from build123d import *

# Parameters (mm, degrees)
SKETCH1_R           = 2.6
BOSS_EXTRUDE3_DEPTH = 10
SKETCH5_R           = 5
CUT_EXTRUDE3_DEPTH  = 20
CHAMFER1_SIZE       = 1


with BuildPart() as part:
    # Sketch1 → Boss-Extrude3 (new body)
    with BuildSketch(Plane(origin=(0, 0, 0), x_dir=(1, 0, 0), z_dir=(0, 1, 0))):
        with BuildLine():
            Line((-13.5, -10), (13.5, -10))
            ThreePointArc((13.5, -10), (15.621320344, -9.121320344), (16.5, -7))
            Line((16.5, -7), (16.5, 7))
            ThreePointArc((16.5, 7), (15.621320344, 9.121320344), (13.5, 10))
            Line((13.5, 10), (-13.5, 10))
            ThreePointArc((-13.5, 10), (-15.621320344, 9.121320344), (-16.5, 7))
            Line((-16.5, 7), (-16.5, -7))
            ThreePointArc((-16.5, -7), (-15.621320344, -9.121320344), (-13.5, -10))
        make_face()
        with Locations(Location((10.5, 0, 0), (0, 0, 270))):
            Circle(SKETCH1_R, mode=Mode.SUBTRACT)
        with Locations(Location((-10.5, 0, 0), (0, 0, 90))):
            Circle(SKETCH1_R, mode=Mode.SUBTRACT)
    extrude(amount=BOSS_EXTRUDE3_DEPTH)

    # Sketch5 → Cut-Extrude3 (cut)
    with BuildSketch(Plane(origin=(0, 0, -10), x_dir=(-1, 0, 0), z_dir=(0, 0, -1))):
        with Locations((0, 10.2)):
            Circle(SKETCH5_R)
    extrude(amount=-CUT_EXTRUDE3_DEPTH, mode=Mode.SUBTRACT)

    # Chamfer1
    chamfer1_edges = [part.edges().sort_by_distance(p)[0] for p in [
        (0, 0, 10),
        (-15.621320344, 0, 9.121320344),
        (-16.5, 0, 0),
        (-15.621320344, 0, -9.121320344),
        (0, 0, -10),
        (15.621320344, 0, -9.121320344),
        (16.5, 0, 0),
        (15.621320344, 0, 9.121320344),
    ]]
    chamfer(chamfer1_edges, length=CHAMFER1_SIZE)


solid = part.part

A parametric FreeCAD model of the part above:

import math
import FreeCAD as App
import Part
import Sketcher

V = App.Vector
Q = App.Units.Quantity


def edges_at(feature, points):
    """Names of the edges that pass closest to the given points."""
    edges = feature.Shape.Edges
    near = lambda p: min(range(len(edges)), key=lambda i: edges[i].distToShape(Part.Vertex(*p))[0])
    return sorted({f"Edge{near(p) + 1}" for p in points})

doc = App.newDocument("Part")
body = doc.addObject("PartDesign::Body", "Body")

sketch1 = doc.addObject("Sketcher::SketchObject", "Sketch")
body.addObject(sketch1)
sketch1.AttachmentSupport = (doc.XZ_Plane, [""])
sketch1.MapMode = "FlatFace"
sketch1.addGeometry(Part.LineSegment(V(-13.5, 10, 0), V(13.5, 10, 0)), False)
sketch1.addGeometry(Part.ArcOfCircle(Part.Circle(V(13.5, 7, 0), V(0, 0, 1), 3), math.radians(0), math.radians(90)), False)
sketch1.addGeometry(Part.LineSegment(V(16.5, 7, 0), V(16.5, -7, 0)), False)
sketch1.addGeometry(Part.ArcOfCircle(Part.Circle(V(13.5, -7, 0), V(0, 0, 1), 3), math.radians(-90), math.radians(0)), False)
sketch1.addGeometry(Part.LineSegment(V(13.5, -10, 0), V(-13.5, -10, 0)), False)
sketch1.addGeometry(Part.ArcOfCircle(Part.Circle(V(-13.5, -7, 0), V(0, 0, 1), 3), math.radians(180), math.radians(270)), False)
sketch1.addGeometry(Part.LineSegment(V(-16.5, -7, 0), V(-16.5, 7, 0)), False)
sketch1.addGeometry(Part.ArcOfCircle(Part.Circle(V(-13.5, 7, 0), V(0, 0, 1), 3), math.radians(90), math.radians(180)), False)
sketch1.addGeometry(Part.Circle(V(-10.5, 0, 0), V(0, 0, 1), 2.6), False)
sketch1.addGeometry(Part.Circle(V(10.5, 0, 0), V(0, 0, 1), 2.6), False)
sketch1.addConstraint(Sketcher.Constraint("Tangent", 0, 2, 1, 2))
sketch1.addConstraint(Sketcher.Constraint("Tangent", 1, 1, 2, 1))
sketch1.addConstraint(Sketcher.Constraint("Tangent", 2, 2, 3, 2))
sketch1.addConstraint(Sketcher.Constraint("Tangent", 3, 1, 4, 1))
sketch1.addConstraint(Sketcher.Constraint("Tangent", 4, 2, 5, 2))
sketch1.addConstraint(Sketcher.Constraint("Tangent", 5, 1, 6, 1))
sketch1.addConstraint(Sketcher.Constraint("Tangent", 6, 2, 7, 2))
sketch1.addConstraint(Sketcher.Constraint("Tangent", 7, 1, 0, 1))
sketch1.addConstraint(Sketcher.Constraint("Horizontal", 0))
sketch1.addConstraint(Sketcher.Constraint("Vertical", 2))
sketch1.addConstraint(Sketcher.Constraint("Horizontal", 4))
sketch1.addConstraint(Sketcher.Constraint("Vertical", 6))
sketch1.addConstraint(Sketcher.Constraint("Equal", 1, 3))
sketch1.addConstraint(Sketcher.Constraint("Equal", 3, 5))
sketch1.addConstraint(Sketcher.Constraint("Equal", 5, 7))
sketch1.addConstraint(Sketcher.Constraint("Equal", 8, 9))
sketch1.addConstraint(Sketcher.Constraint("Symmetric", 1, 3, 5, 3, -1, 1))
sketch1.addConstraint(Sketcher.Constraint("Symmetric", 8, 3, 9, 3, -1, 1))
sketch1.addConstraint(Sketcher.Constraint("PointOnObject", 8, 3, -1))
sketch1.addConstraint(Sketcher.Constraint("Radius", 1, Q("3 mm")))
sketch1.addConstraint(Sketcher.Constraint("Diameter", 8, Q("5.2 mm")))
sketch1.addConstraint(Sketcher.Constraint("DistanceX", 0, 1, 0, 2, Q("27 mm")))
sketch1.addConstraint(Sketcher.Constraint("DistanceY", 2, 2, 2, 1, Q("14 mm")))
sketch1.addConstraint(Sketcher.Constraint("DistanceX", 5, 3, 8, 3, Q("3 mm")))
pad1 = doc.addObject("PartDesign::Pad", "Pad")
body.addObject(pad1)
pad1.Profile = sketch1
pad1.Length = 10
pad1.Reversed = True

sketch2 = doc.addObject("Sketcher::SketchObject", "Sketch001")
body.addObject(sketch2)
sketch2.AttachmentSupport = (doc.XY_Plane, [""])
sketch2.MapMode = "FlatFace"
sketch2.AttachmentOffset = App.Placement(V(0, 0, -10), App.Rotation())
sketch2.addGeometry(Part.Circle(V(0, 10.2, 0), V(0, 0, 1), 5), False)
sketch2.addConstraint(Sketcher.Constraint("PointOnObject", 0, 3, -2))
sketch2.addConstraint(Sketcher.Constraint("Diameter", 0, Q("10 mm")))
sketch2.addConstraint(Sketcher.Constraint("DistanceY", -1, 1, 0, 3, Q("10.2 mm")))
pocket1 = doc.addObject("PartDesign::Pocket", "Pocket")
body.addObject(pocket1)
pocket1.Profile = sketch2
pocket1.Length = 20
pocket1.Reversed = True
doc.recompute()

chamfer = doc.addObject("PartDesign::Chamfer", "Chamfer")
body.addObject(chamfer)
chamfer.Base = (pocket1, edges_at(pocket1, [
    (0, 0, 10),
    (-15.621, 0, 9.121),
    (-16.5, 0, 0),
    (-15.621, 0, -9.121),
    (0, 0, -10),
    (15.621, 0, -9.121),
    (16.5, 0, 0),
    (15.621, 0, 9.121),
]))
chamfer.Size = 1

doc.recompute()
